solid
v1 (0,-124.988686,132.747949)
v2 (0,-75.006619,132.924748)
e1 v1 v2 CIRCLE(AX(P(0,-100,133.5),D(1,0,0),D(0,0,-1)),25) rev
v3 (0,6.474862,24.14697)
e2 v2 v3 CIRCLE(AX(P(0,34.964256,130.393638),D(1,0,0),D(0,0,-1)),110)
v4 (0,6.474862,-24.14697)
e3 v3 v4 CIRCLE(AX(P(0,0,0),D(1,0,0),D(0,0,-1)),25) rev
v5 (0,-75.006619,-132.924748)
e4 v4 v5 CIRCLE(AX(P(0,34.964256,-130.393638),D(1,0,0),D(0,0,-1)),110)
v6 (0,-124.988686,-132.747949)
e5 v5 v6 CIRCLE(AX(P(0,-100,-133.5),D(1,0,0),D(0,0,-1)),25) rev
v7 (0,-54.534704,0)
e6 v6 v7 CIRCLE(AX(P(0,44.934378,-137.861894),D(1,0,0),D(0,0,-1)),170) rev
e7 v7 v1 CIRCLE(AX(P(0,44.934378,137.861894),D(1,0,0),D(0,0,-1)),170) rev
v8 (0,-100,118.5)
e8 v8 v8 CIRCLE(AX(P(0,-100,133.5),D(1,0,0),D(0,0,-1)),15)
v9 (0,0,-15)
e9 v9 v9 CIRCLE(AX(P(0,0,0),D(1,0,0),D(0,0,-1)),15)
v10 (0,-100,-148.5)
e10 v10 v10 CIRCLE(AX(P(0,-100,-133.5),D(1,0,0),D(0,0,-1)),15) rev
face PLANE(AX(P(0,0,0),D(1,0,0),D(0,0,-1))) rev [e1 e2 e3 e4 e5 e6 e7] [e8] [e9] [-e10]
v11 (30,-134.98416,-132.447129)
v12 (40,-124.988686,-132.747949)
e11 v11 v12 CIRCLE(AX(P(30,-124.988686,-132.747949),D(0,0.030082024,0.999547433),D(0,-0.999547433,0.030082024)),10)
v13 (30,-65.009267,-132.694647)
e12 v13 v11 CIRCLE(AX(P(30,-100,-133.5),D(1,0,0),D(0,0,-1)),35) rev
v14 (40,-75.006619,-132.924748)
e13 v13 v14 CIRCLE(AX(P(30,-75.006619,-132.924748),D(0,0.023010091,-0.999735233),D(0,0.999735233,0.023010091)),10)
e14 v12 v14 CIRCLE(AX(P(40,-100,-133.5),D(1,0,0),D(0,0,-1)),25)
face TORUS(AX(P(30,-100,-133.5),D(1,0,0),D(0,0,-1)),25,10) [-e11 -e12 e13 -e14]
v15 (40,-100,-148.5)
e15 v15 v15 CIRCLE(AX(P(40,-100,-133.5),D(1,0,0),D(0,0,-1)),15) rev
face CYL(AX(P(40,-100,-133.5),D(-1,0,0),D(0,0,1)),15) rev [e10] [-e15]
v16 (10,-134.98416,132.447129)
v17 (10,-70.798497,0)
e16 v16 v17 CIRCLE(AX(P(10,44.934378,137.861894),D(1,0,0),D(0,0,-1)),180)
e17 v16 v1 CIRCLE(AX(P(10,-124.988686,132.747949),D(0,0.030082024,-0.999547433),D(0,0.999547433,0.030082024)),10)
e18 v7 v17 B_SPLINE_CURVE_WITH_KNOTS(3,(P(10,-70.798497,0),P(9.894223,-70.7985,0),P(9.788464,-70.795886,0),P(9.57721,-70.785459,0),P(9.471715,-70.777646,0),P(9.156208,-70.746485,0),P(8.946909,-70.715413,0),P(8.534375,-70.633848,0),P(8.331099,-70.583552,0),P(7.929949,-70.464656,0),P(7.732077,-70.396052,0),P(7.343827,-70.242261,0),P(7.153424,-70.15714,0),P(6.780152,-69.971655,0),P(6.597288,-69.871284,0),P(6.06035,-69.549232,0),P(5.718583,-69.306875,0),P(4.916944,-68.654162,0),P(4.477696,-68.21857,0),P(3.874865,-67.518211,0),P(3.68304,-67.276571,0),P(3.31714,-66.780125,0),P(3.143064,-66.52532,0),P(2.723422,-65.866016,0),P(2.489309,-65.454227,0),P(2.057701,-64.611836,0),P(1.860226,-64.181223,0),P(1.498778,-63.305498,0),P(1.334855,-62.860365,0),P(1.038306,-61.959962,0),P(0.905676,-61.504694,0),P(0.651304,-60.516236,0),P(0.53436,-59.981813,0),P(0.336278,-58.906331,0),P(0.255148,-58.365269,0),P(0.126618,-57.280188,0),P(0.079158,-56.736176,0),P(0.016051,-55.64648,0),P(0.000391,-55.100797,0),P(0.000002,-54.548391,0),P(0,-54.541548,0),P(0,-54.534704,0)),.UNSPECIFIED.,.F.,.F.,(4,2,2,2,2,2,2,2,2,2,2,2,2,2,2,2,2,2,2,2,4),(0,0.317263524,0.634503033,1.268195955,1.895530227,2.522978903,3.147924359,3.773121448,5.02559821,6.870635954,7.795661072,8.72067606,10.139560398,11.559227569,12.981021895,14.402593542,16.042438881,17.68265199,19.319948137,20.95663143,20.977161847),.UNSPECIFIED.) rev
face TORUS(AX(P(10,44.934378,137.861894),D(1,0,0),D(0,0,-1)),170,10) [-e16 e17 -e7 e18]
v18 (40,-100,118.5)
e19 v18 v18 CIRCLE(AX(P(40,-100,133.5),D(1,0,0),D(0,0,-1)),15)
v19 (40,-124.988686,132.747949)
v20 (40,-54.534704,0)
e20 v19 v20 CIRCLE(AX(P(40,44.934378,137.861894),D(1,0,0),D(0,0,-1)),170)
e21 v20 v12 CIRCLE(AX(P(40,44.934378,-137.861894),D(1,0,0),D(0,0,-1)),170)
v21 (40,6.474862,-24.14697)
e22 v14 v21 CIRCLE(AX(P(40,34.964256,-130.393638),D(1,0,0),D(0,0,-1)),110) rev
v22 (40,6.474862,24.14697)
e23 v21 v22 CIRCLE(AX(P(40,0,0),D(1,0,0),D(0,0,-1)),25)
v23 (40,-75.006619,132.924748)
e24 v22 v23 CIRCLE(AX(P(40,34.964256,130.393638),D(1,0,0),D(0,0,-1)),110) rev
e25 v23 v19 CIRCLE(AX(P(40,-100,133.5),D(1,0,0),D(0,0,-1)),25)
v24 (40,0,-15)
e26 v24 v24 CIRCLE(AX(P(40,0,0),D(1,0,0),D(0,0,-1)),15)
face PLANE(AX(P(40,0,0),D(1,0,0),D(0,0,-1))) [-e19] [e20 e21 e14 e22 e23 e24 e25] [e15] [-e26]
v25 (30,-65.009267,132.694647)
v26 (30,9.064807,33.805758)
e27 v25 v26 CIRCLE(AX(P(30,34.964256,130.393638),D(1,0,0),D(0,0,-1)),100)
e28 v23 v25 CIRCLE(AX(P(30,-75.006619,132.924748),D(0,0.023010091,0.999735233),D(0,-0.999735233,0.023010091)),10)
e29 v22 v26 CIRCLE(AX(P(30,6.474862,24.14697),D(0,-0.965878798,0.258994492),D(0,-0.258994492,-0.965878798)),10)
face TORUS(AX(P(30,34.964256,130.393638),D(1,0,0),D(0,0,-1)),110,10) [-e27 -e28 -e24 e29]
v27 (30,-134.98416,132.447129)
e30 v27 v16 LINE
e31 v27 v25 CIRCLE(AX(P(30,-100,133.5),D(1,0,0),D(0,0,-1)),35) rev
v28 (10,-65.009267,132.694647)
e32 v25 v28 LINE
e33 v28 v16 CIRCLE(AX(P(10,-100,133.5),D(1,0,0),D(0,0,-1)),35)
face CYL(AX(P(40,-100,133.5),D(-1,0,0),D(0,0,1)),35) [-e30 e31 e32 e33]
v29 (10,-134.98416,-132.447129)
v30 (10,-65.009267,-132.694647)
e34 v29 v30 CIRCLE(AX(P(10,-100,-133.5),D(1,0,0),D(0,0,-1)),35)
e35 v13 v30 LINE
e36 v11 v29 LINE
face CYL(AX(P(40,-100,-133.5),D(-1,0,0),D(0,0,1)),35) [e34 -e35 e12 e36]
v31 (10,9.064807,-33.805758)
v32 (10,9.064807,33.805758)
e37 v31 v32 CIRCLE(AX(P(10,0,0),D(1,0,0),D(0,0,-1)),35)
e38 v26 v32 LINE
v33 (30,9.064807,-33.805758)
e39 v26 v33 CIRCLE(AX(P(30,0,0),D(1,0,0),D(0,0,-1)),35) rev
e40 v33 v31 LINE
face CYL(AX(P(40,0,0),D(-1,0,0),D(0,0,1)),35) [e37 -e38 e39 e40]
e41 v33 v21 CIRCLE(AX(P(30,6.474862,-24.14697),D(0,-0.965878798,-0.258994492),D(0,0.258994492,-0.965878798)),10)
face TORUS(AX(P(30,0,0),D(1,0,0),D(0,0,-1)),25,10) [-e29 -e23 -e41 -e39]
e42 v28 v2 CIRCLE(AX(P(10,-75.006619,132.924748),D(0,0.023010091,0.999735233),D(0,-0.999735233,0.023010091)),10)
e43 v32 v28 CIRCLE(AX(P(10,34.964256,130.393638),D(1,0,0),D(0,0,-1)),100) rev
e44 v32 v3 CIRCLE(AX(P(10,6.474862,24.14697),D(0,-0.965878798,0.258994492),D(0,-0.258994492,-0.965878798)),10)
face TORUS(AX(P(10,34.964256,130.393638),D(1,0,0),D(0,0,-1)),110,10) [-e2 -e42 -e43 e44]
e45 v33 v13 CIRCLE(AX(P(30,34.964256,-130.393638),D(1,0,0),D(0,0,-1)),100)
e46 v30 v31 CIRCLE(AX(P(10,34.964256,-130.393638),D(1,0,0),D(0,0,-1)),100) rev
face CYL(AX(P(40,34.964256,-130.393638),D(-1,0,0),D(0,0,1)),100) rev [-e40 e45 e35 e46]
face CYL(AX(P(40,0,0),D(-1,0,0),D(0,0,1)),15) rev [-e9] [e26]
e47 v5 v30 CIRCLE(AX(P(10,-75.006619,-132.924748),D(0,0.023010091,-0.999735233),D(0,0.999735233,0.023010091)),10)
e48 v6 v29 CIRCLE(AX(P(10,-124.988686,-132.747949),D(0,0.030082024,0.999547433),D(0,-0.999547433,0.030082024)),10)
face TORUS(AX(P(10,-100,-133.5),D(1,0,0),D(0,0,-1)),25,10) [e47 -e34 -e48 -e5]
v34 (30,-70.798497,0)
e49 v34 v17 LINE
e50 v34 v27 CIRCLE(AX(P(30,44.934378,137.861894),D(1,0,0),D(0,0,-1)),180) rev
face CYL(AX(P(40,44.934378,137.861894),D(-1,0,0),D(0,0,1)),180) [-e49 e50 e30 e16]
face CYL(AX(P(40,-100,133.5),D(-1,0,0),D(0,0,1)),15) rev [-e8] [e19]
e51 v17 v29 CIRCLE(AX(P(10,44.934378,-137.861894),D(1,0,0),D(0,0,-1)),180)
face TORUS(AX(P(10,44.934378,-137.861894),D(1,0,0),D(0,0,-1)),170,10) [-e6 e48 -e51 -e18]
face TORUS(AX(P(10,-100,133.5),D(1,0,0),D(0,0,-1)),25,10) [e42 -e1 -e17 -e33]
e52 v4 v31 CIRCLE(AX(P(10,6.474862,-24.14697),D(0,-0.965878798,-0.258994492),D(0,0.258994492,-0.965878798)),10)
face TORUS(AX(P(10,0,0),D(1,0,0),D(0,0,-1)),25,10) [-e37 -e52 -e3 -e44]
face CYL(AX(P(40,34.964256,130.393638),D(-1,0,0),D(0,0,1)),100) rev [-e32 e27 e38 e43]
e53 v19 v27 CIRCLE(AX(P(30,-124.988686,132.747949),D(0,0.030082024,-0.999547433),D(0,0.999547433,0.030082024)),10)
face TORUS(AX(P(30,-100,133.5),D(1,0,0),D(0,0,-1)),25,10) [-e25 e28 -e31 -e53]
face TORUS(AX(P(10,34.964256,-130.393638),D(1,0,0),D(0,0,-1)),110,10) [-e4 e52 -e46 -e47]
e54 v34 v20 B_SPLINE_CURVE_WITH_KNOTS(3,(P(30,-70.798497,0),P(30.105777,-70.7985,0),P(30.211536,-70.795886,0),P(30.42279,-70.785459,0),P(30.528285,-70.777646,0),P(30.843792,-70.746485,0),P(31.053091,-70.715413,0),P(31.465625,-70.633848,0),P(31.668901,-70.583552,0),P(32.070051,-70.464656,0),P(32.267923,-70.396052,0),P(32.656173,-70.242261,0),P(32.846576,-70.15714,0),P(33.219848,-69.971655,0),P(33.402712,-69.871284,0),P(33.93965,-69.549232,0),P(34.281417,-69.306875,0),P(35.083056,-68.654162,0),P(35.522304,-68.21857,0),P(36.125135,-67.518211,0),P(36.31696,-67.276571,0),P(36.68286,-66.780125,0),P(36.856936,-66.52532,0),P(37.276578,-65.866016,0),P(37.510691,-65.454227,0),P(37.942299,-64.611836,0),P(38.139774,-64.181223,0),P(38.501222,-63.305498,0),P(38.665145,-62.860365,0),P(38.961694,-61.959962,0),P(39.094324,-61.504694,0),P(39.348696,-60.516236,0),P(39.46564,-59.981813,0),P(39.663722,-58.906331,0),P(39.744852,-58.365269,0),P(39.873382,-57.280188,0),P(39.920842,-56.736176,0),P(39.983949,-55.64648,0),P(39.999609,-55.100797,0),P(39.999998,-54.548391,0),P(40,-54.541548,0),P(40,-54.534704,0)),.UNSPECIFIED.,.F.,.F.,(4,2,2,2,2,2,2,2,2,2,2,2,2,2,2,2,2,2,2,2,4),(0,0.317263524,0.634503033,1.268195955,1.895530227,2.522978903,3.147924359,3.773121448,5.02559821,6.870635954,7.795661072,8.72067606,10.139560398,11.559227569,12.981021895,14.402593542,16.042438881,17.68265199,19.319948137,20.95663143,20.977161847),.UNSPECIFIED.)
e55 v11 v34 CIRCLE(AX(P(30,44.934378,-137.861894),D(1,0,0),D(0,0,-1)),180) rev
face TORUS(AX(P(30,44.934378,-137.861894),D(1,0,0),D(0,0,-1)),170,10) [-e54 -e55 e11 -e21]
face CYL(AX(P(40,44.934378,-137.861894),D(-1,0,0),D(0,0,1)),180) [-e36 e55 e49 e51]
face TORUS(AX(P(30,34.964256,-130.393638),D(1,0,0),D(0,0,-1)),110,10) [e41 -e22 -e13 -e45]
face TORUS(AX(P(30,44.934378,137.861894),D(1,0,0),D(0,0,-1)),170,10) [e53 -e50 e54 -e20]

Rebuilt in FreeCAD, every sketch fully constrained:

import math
import FreeCAD as App
import Part
import Sketcher
from FreeCAD import Vector


def edges_at(feature, points):
    """Names of the edges that pass closest to the given points."""
    edges = feature.Shape.Edges
    near = lambda p: min(range(len(edges)), key=lambda i: edges[i].distToShape(Part.Vertex(*p))[0])
    return sorted({f"Edge{near(p) + 1}" for p in points})

doc = App.newDocument("Part")
params = doc.addObject("Spreadsheet::Sheet", "Params")
for row, (alias, value) in enumerate([
    ("sketch1_diameter", "30 mm"),
    ("sketch1_diameter2", "30 mm"),
    ("sketch1_diameter3", "30 mm"),
    ("sketch1_radius", "35 mm"),
    ("sketch1_radius2", "100 mm"),
    ("pad1_length", "40 mm"),
    ("fillet_radius", "10 mm"),
], start=1):
    params.set(f"A{row}", alias)
    params.set(f"B{row}", "=" + value)
    params.setAlias(f"B{row}", alias)

body = doc.addObject("PartDesign::Body", "Body")

# Sketch on YZ plane
sketch1 = body.newObject("Sketcher::SketchObject", "Sketch")
sketch1.AttachmentSupport = (doc.getObject("YZ_Plane"), [""])
sketch1.MapMode = "FlatFace"
sketch1.addGeometry(Part.ArcOfCircle(Part.Circle(Vector(-100, -133.5, 0), Vector(0, 0, 1), 35), math.radians(178.276167), math.radians(361.318497)), False)
sketch1.addGeometry(Part.ArcOfCircle(Part.Circle(Vector(34.964256, -130.393638, 0), Vector(0, 0, 1), 100), math.radians(105.010407), math.radians(181.318497)), False)
sketch1.addGeometry(Part.ArcOfCircle(Part.Circle(Vector(0, 0, 0), Vector(0, 0, 1), 35), math.radians(-74.989593), math.radians(74.989593)), False)
sketch1.addGeometry(Part.ArcOfCircle(Part.Circle(Vector(34.964256, 130.393638, 0), Vector(0, 0, 1), 100), math.radians(178.681503), math.radians(254.989593)), False)
sketch1.addGeometry(Part.ArcOfCircle(Part.Circle(Vector(-100, 133.5, 0), Vector(0, 0, 1), 35), math.radians(-1.318497), math.radians(181.723833)), False)
sketch1.addGeometry(Part.ArcOfCircle(Part.Circle(Vector(44.934378, 137.861894, 0), Vector(0, 0, 1), 180), math.radians(-178.276167), math.radians(-130.012926)), False)
sketch1.addGeometry(Part.ArcOfCircle(Part.Circle(Vector(44.934378, -137.861894, 0), Vector(0, 0, 1), 180), math.radians(130.012926), math.radians(178.276167)), False)
sketch1.addGeometry(Part.Circle(Vector(-100, -133.5, 0), Vector(0, 0, 1), 15), False)
sketch1.addGeometry(Part.Circle(Vector(-100, 133.5, 0), Vector(0, 0, 1), 15), False)
sketch1.addGeometry(Part.Circle(Vector(0, 0, 0), Vector(0, 0, 1), 15), False)
sketch1.addConstraint(Sketcher.Constraint("Coincident", 0, 2, 1, 2))
sketch1.addConstraint(Sketcher.Constraint("Coincident", 1, 1, 2, 1))
sketch1.addConstraint(Sketcher.Constraint("Coincident", 2, 2, 3, 2))
sketch1.addConstraint(Sketcher.Constraint("Coincident", 3, 1, 4, 1))
sketch1.addConstraint(Sketcher.Constraint("Coincident", 4, 2, 5, 1))
sketch1.addConstraint(Sketcher.Constraint("Coincident", 5, 2, 6, 1))
sketch1.addConstraint(Sketcher.Constraint("Coincident", 6, 2, 0, 1))
sketch1.addConstraint(Sketcher.Constraint("Coincident", 2, 3, -1, 1))
sketch1.addConstraint(Sketcher.Constraint("Coincident", 9, 3, -1, 1))
sketch1.addConstraint(Sketcher.Constraint("Coincident", 7, 3, 0, 3))
sketch1.addConstraint(Sketcher.Constraint("Coincident", 8, 3, 4, 3))
sketch1.addConstraint(Sketcher.Constraint("PointOnObject", 5, 2, -1))
sketch1.addConstraint(Sketcher.Constraint("Diameter", 7, 30.0))
sketch1.addConstraint(Sketcher.Constraint("Diameter", 8, 30.0))
sketch1.addConstraint(Sketcher.Constraint("Diameter", 9, 30.0))
sketch1.addConstraint(Sketcher.Constraint("Radius", 0, 35.0))
sketch1.addConstraint(Sketcher.Constraint("Radius", 1, 100.0))
sketch1.addConstraint(Sketcher.Constraint("Radius", 2, 35.0))
sketch1.addConstraint(Sketcher.Constraint("Radius", 3, 100.0))
sketch1.addConstraint(Sketcher.Constraint("Radius", 4, 35.0))
sketch1.addConstraint(Sketcher.Constraint("Radius", 5, 180.0))
sketch1.addConstraint(Sketcher.Constraint("Radius", 6, 180.0))
sketch1.addConstraint(Sketcher.Constraint("DistanceX", 0, 3, -1, 1, 100.0))
sketch1.addConstraint(Sketcher.Constraint("DistanceX", 4, 3, -1, 1, 100.0))
sketch1.addConstraint(Sketcher.Constraint("DistanceY", 0, 3, 4, 3, 267.0))
sketch1.addConstraint(Sketcher.Constraint("DistanceY", 0, 3, -1, 1, 133.5))
sketch1.addConstraint(Sketcher.Constraint("DistanceX", 4, 2, -1, 1, 134.98416))
sketch1.addConstraint(Sketcher.Constraint("DistanceX", 6, 2, -1, 1, 134.98416))
sketch1.addConstraint(Sketcher.Constraint("DistanceX", 3, 3, 5, 3, 9.970121))
sketch1.addConstraint(Sketcher.Constraint("DistanceY", 0, 2, 1, 3, 2.301009))
sketch1.addConstraint(Sketcher.Constraint("DistanceX", 1, 1, 1, 3, 25.899449))
sketch1.addConstraint(Sketcher.Constraint("DistanceX", 2, 2, 3, 3, 25.899449))
sketch1.addConstraint(Sketcher.Constraint("DistanceY", 3, 3, 3, 1, 2.301009))
sketch1.setExpression("Constraints[12]", "Params.sketch1_diameter")
sketch1.setExpression("Constraints[13]", "Params.sketch1_diameter2")
sketch1.setExpression("Constraints[14]", "Params.sketch1_diameter3")
sketch1.setExpression("Constraints[15]", "Params.sketch1_radius")
sketch1.setExpression("Constraints[16]", "Params.sketch1_radius2")
pad1 = body.newObject("PartDesign::Pad", "Pad")
pad1.Profile = sketch1
pad1.setExpression("Length", "Params.pad1_length")
doc.recompute()

fillet = body.newObject("PartDesign::Fillet", "Fillet")
fillet.Base = (pad1, edges_at(pad1, [
    (0, -117.047, -59.363),
    (0, -117.047, 59.363),
    (0, -100.124, 168.5),
    (0, -45.072, 70.442),
    (0, 35, 0),
    (0, -45.072, -70.442),
    (0, -100.124, -168.5),
    (40, -100.124, -168.5),
    (40, -45.072, -70.442),
    (40, 35, 0),
    (40, -45.072, 70.442),
    (40, -100.124, 168.5),
    (40, -117.047, 59.363),
    (40, -117.047, -59.363),
]))
fillet.setExpression("Radius", "Params.fillet_radius")

doc.recompute()
